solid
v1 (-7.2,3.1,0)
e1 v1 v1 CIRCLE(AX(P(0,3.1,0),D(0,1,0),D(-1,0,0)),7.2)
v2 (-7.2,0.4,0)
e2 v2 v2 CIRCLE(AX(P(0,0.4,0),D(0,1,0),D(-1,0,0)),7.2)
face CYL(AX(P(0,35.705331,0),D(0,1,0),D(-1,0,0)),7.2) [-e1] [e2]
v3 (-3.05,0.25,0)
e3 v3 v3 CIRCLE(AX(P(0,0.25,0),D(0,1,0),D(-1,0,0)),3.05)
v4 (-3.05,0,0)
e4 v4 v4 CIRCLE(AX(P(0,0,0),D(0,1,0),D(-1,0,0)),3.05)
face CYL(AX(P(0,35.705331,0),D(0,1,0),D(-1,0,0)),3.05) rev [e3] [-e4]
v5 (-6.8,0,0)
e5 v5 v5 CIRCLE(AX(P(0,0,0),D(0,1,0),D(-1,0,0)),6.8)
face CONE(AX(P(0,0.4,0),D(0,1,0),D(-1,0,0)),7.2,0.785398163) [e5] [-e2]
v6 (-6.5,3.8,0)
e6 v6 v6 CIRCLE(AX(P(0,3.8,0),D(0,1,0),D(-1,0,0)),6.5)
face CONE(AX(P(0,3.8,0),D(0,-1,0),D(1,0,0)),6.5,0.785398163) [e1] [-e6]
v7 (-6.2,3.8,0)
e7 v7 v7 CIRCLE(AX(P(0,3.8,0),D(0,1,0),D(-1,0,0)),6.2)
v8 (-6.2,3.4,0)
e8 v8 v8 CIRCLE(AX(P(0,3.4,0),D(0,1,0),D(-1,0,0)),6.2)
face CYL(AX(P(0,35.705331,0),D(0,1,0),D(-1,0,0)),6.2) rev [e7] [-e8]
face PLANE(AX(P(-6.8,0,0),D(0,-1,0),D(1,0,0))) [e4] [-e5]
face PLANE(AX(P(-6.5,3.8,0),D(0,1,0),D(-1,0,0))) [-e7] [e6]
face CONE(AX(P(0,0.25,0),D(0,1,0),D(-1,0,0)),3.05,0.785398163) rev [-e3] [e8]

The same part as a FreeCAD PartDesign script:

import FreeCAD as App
import Part
import Sketcher
Q = App.Units.Quantity

doc = App.newDocument("Part")
body = doc.addObject("PartDesign::Body", "Body")

sketch1 = doc.addObject("Sketcher::SketchObject", "Sketch")
body.addObject(sketch1)
sketch1.AttachmentSupport = (doc.XY_Plane, [""])
sketch1.MapMode = "FlatFace"
sketch1.addGeometry([
    Part.LineSegment(App.Vector(-6.8, 0, 0), App.Vector(-3.05, 0, 0)),
    Part.LineSegment(App.Vector(-3.05, 0, 0), App.Vector(-3.05, 0.25, 0)),
    Part.LineSegment(App.Vector(-3.05, 0.25, 0), App.Vector(-6.2, 3.4, 0)),
    Part.LineSegment(App.Vector(-6.2, 3.4, 0), App.Vector(-6.2, 3.8, 0)),
    Part.LineSegment(App.Vector(-6.2, 3.8, 0), App.Vector(-6.5, 3.8, 0)),
    Part.LineSegment(App.Vector(-6.5, 3.8, 0), App.Vector(-7.2, 3.1, 0)),
    Part.LineSegment(App.Vector(-7.2, 3.1, 0), App.Vector(-7.2, 0.4, 0)),
    Part.LineSegment(App.Vector(-7.2, 0.4, 0), App.Vector(-6.8, 0, 0)),
], False)
sketch1.addConstraint([
    Sketcher.Constraint("Coincident", 0, 2, 1, 1),
    Sketcher.Constraint("Coincident", 1, 2, 2, 1),
    Sketcher.Constraint("Coincident", 2, 2, 3, 1),
    Sketcher.Constraint("Coincident", 3, 2, 4, 1),
    Sketcher.Constraint("Coincident", 4, 2, 5, 1),
    Sketcher.Constraint("Coincident", 5, 2, 6, 1),
    Sketcher.Constraint("Coincident", 6, 2, 7, 1),
    Sketcher.Constraint("Coincident", 7, 2, 0, 1),
    Sketcher.Constraint("Horizontal", 0),
    Sketcher.Constraint("Vertical", 1),
    Sketcher.Constraint("Vertical", 3),
    Sketcher.Constraint("Horizontal", 4),
    Sketcher.Constraint("Vertical", 6),
    Sketcher.Constraint("PointOnObject", 0, 2, -1),
    Sketcher.Constraint("Perpendicular", 2, 5),
    Sketcher.Constraint("Perpendicular", 5, 7),
    Sketcher.Constraint("Angle", 2, Q("135 deg")),
    Sketcher.Constraint("DistanceX", 4, 2, 4, 1, Q("0.3 mm")),
    Sketcher.Constraint("DistanceY", 3, 1, 3, 2, Q("0.4 mm")),
    Sketcher.Constraint("DistanceY", 6, 2, 6, 1, Q("2.7 mm")),
    Sketcher.Constraint("DistanceX", 5, 2, 2, 2, Q("1 mm")),
    Sketcher.Constraint("DistanceX", 0, 1, 0, 2, Q("3.75 mm")),
    Sketcher.Constraint("DistanceX", 2, 2, -1, 1, Q("6.2 mm")),
    Sketcher.Constraint("DistanceY", -1, 1, 2, 2, Q("3.4 mm")),
])
revolution = doc.addObject("PartDesign::Revolution", "Revolution")
body.addObject(revolution)
revolution.Profile = sketch1
revolution.ReferenceAxis = (sketch1, ["V_Axis"])
revolution.Angle = 360

doc.recompute()
